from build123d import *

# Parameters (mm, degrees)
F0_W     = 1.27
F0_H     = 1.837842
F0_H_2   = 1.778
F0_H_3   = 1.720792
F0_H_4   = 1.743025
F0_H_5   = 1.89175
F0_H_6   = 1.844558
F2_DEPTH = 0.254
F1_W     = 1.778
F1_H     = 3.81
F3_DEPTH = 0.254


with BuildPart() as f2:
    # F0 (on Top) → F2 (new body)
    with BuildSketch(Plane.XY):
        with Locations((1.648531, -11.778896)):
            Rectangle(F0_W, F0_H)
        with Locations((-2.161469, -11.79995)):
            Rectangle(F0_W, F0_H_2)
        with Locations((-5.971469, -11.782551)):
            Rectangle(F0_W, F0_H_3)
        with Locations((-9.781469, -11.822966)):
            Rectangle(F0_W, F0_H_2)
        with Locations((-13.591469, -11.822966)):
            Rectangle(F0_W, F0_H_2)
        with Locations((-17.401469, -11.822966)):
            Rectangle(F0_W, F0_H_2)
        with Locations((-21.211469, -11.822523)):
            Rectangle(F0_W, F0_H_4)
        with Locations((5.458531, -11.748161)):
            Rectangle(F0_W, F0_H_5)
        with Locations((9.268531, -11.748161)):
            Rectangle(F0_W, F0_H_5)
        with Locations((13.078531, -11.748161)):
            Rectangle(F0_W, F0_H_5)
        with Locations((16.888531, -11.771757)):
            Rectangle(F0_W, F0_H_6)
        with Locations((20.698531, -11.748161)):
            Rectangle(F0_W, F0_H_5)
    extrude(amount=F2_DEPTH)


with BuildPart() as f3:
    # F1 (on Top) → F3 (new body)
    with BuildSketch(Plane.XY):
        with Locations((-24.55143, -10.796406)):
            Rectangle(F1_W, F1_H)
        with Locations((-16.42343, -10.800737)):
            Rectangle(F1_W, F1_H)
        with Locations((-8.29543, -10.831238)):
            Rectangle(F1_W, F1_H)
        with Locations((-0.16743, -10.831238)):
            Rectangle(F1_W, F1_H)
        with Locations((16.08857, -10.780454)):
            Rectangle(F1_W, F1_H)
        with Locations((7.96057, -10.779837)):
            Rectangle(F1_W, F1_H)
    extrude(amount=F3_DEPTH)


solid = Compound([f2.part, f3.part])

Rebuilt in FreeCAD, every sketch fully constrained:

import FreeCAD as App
import Part
import Sketcher
from FreeCAD import Vector
Q = App.Units.Quantity


def add_polygon(sketch, points):
    """Adds a closed chain of lines whose ends are joined by coincident constraints."""
    first, n = sketch.GeometryCount, len(points)
    for a, b in zip(points, points[1:] + points[:1]):
        sketch.addGeometry(Part.LineSegment(App.Vector(*a, 0), App.Vector(*b, 0)), False)
    for i in range(n):
        sketch.addConstraint(Sketcher.Constraint("Coincident", first + i, 2, first + (i + 1) % n, 1))

doc = App.newDocument("Part")
body = doc.addObject("PartDesign::Body", "Body")
body.AllowCompound = True

sketch1 = body.newObject("Sketcher::SketchObject", "Sketch")
sketch1.AttachmentSupport = (doc.getObject("XY_Plane"), [""])
sketch1.MapMode = "FlatFace"
add_polygon(sketch1, [(1, -10.9), (1, -12.7), (2.3, -12.7), (2.3, -10.9)])
add_polygon(sketch1, [(-2.8, -10.9), (-2.8, -12.7), (-1.5, -12.7), (-1.5, -10.9)])
add_polygon(sketch1, [(-6.6, -10.9), (-6.6, -12.6), (-5.3, -12.6), (-5.3, -10.9)])
add_polygon(sketch1, [(-10.4, -10.9), (-10.4, -12.7), (-9.1, -12.7), (-9.1, -10.9)])
add_polygon(sketch1, [(-14.2, -10.9), (-14.2, -12.7), (-13, -12.7), (-13, -10.9)])
add_polygon(sketch1, [(-18, -10.9), (-18, -12.7), (-16.8, -12.7), (-16.8, -10.9)])
add_polygon(sketch1, [(-21.8, -11), (-21.8, -12.7), (-20.6, -12.7), (-20.6, -11)])
add_polygon(sketch1, [(4.8, -10.8), (4.8, -12.7), (6.1, -12.7), (6.1, -10.8)])
add_polygon(sketch1, [(8.6, -10.8), (8.6, -12.7), (9.9, -12.7), (9.9, -10.8)])
add_polygon(sketch1, [(12.4, -10.8), (12.4, -12.7), (13.7, -12.7), (13.7, -10.8)])
add_polygon(sketch1, [(16.3, -10.8), (16.3, -12.7), (17.5, -12.7), (17.5, -10.8)])
add_polygon(sketch1, [(20.1, -10.8), (20.1, -12.7), (21.3, -12.7), (21.3, -10.8)])
sketch1.addConstraint([
    Sketcher.Constraint("Vertical", 0),
    Sketcher.Constraint("Horizontal", 1),
    Sketcher.Constraint("Vertical", 2),
    Sketcher.Constraint("Horizontal", 3),
    Sketcher.Constraint("Vertical", 4),
    Sketcher.Constraint("Horizontal", 5),
    Sketcher.Constraint("Vertical", 6),
    Sketcher.Constraint("Horizontal", 7),
    Sketcher.Constraint("Vertical", 8),
    Sketcher.Constraint("Horizontal", 9),
    Sketcher.Constraint("Vertical", 10),
    Sketcher.Constraint("Horizontal", 11),
    Sketcher.Constraint("Vertical", 12),
    Sketcher.Constraint("Horizontal", 13),
    Sketcher.Constraint("Vertical", 14),
    Sketcher.Constraint("Horizontal", 15),
    Sketcher.Constraint("Vertical", 16),
    Sketcher.Constraint("Horizontal", 17),
    Sketcher.Constraint("Vertical", 18),
    Sketcher.Constraint("Horizontal", 19),
    Sketcher.Constraint("Vertical", 20),
    Sketcher.Constraint("Horizontal", 21),
    Sketcher.Constraint("Vertical", 22),
    Sketcher.Constraint("Horizontal", 23),
    Sketcher.Constraint("Vertical", 24),
    Sketcher.Constraint("Horizontal", 25),
    Sketcher.Constraint("Vertical", 26),
    Sketcher.Constraint("Horizontal", 27),
    Sketcher.Constraint("Vertical", 28),
    Sketcher.Constraint("Horizontal", 29),
    Sketcher.Constraint("Vertical", 30),
    Sketcher.Constraint("Horizontal", 31),
    Sketcher.Constraint("Vertical", 32),
    Sketcher.Constraint("Horizontal", 33),
    Sketcher.Constraint("Vertical", 34),
    Sketcher.Constraint("Horizontal", 35),
    Sketcher.Constraint("Vertical", 36),
    Sketcher.Constraint("Horizontal", 37),
    Sketcher.Constraint("Vertical", 38),
    Sketcher.Constraint("Horizontal", 39),
    Sketcher.Constraint("Vertical", 40),
    Sketcher.Constraint("Horizontal", 41),
    Sketcher.Constraint("Vertical", 42),
    Sketcher.Constraint("Horizontal", 43),
    Sketcher.Constraint("Vertical", 44),
    Sketcher.Constraint("Horizontal", 45),
    Sketcher.Constraint("Vertical", 46),
    Sketcher.Constraint("Horizontal", 47),
    Sketcher.Constraint("Horizontal", 13, 2, 16, 2),
    Sketcher.Constraint("Horizontal", 15, 2, 18, 2),
    Sketcher.Constraint("Horizontal", 17, 2, 20, 2),
    Sketcher.Constraint("Horizontal", 19, 2, 22, 2),
    Sketcher.Constraint("Horizontal", 25, 2, 28, 2),
    Sketcher.Constraint("Horizontal", 29, 2, 32, 2),
    Sketcher.Constraint("Horizontal", 31, 2, 34, 2),
    Sketcher.Constraint("Horizontal", 33, 2, 36, 2),
    Sketcher.Constraint("Horizontal", 35, 2, 38, 2),
    Sketcher.Constraint("Horizontal", 37, 2, 40, 2),
    Sketcher.Constraint("Horizontal", 41, 2, 44, 2),
    Sketcher.Constraint("Horizontal", 39, 2, 46, 2),
    Sketcher.Constraint("Equal", 3, 5),
    Sketcher.Constraint("Equal", 7, 9),
    Sketcher.Constraint("Equal", 11, 13),
    Sketcher.Constraint("Equal", 15, 17),
    Sketcher.Constraint("Equal", 19, 21),
    Sketcher.Constraint("Equal", 23, 25),
    Sketcher.Constraint("Equal", 27, 29),
    Sketcher.Constraint("Equal", 31, 33),
    Sketcher.Constraint("Equal", 35, 37),
    Sketcher.Constraint("Equal", 39, 41),
    Sketcher.Constraint("Equal", 43, 45),
    Sketcher.Constraint("Equal", 6, 12),
    Sketcher.Constraint("DistanceX", 1, 1, 1, 2, Q("0.05 in")),
    Sketcher.Constraint("DistanceY", 4, 2, 4, 1, Q("0.07 in")),
    Sketcher.Constraint("DistanceX", 4, 2, 1, 2, Q("0.2 in")),
    Sketcher.Constraint("DistanceX", 8, 2, 5, 2, Q("0.2 in")),
    Sketcher.Constraint("DistanceX", 12, 2, 9, 2, Q("0.2 in")),
    Sketcher.Constraint("DistanceX", 16, 2, 13, 2, Q("0.2 in")),
    Sketcher.Constraint("DistanceX", 20, 2, 17, 2, Q("0.2 in")),
    Sketcher.Constraint("DistanceX", 24, 2, 21, 2, Q("0.2 in")),
    Sketcher.Constraint("DistanceX", 1, 2, 28, 2, Q("0.1 in")),
    Sketcher.Constraint("DistanceX", 29, 2, 32, 2, Q("0.1 in")),
    Sketcher.Constraint("DistanceX", 33, 2, 36, 2, Q("0.1 in")),
    Sketcher.Constraint("DistanceX", 37, 2, 40, 2, Q("0.1 in")),
    Sketcher.Constraint("DistanceX", 41, 2, 44, 2, Q("0.1 in")),
    Sketcher.Constraint("DistanceY", 8, 2, 8, 1, Q("1.720792 mm")),
    Sketcher.Constraint("DistanceY", 28, 2, 28, 1, Q("1.89175 mm")),
    Sketcher.Constraint("DistanceY", 40, 2, 40, 1, Q("1.844558 mm")),
    Sketcher.Constraint("DistanceY", 0, 2, 0, 1, Q("1.837842 mm")),
    Sketcher.Constraint("DistanceY", 24, 2, 24, 1, Q("1.743025 mm")),
    Sketcher.Constraint("DistanceX", -1, 1, 0, 2, Q("1.013531 mm")),
    Sketcher.Constraint("DistanceY", 4, 2, -1, 1, Q("12.68895 mm")),
    Sketcher.Constraint("DistanceY", 26, 2, -1, 1, Q("10.951011 mm")),
    Sketcher.Constraint("DistanceY", 0, 2, 8, 2, Q("0.05487 mm")),
    Sketcher.Constraint("DistanceY", 12, 2, 8, 2, Q("0.069019 mm")),
    Sketcher.Constraint("DistanceY", 20, 2, 24, 2, Q("0.017931 mm")),
])
pad1 = body.newObject("PartDesign::Pad", "Pad")
pad1.Profile = sketch1
pad1.Length = Q("0.01 in")
body2 = doc.addObject("PartDesign::Body", "Body001")
body2.AllowCompound = True

sketch2 = body2.newObject("Sketcher::SketchObject", "Sketch001")
sketch2.AttachmentSupport = (doc.getObject("XY_Plane001"), [""])
sketch2.MapMode = "FlatFace"
add_polygon(sketch2, [(-25.4, -8.9), (-25.4, -12.7), (-23.7, -12.7), (-23.7, -8.9)])
add_polygon(sketch2, [(-17.3, -8.9), (-17.3, -12.7), (-15.5, -12.7), (-15.5, -8.9)])
add_polygon(sketch2, [(-9.2, -8.9), (-9.2, -12.7), (-7.4, -12.7), (-7.4, -8.9)])
add_polygon(sketch2, [(-1.1, -8.9), (-1.1, -12.7), (0.7, -12.7), (0.7, -8.9)])
add_polygon(sketch2, [(15.2, -8.9), (15.2, -12.7), (17, -12.7), (17, -8.9)])
add_polygon(sketch2, [(7.1, -8.9), (7.1, -12.7), (8.8, -12.7), (8.8, -8.9)])
sketch2.addConstraint([
    Sketcher.Constraint("Vertical", 0),
    Sketcher.Constraint("Horizontal", 1),
    Sketcher.Constraint("Vertical", 2),
    Sketcher.Constraint("Horizontal", 3),
    Sketcher.Constraint("Vertical", 4),
    Sketcher.Constraint("Horizontal", 5),
    Sketcher.Constraint("Vertical", 6),
    Sketcher.Constraint("Horizontal", 7),
    Sketcher.Constraint("Vertical", 8),
    Sketcher.Constraint("Horizontal", 9),
    Sketcher.Constraint("Vertical", 10),
    Sketcher.Constraint("Horizontal", 11),
    Sketcher.Constraint("Vertical", 12),
    Sketcher.Constraint("Horizontal", 13),
    Sketcher.Constraint("Vertical", 14),
    Sketcher.Constraint("Horizontal", 15),
    Sketcher.Constraint("Vertical", 16),
    Sketcher.Constraint("Horizontal", 17),
    Sketcher.Constraint("Vertical", 18),
    Sketcher.Constraint("Horizontal", 19),
    Sketcher.Constraint("Vertical", 20),
    Sketcher.Constraint("Horizontal", 21),
    Sketcher.Constraint("Vertical", 22),
    Sketcher.Constraint("Horizontal", 23),
    Sketcher.Constraint("Horizontal", 9, 2, 12, 2),
    Sketcher.Constraint("Horizontal", 11, 2, 14, 2),
    Sketcher.Constraint("Equal", 3, 5),
    Sketcher.Constraint("Equal", 7, 9),
    Sketcher.Constraint("Equal", 11, 13),
    Sketcher.Constraint("Equal", 15, 17),
    Sketcher.Constraint("Equal", 19, 21),
    Sketcher.Constraint("Equal", 2, 4),
    Sketcher.Constraint("Equal", 6, 8),
    Sketcher.Constraint("Equal", 14, 16),
    Sketcher.Constraint("Equal", 18, 20),
    Sketcher.Constraint("DistanceX", 1, 1, 1, 2, Q("0.07 in")),
    Sketcher.Constraint("DistanceY", 0, 2, 0, 1, Q("0.15 in")),
    Sketcher.Constraint("DistanceX", 1, 2, 4, 2, Q("0.25 in")),
    Sketcher.Constraint("DistanceX", 5, 2, 8, 2, Q("0.25 in")),
    Sketcher.Constraint("DistanceX", 9, 2, 12, 2, Q("0.25 in")),
    Sketcher.Constraint("DistanceX", 13, 2, 16, 2, Q("0.57 in")),
    Sketcher.Constraint("DistanceX", 13, 2, 20, 2, Q("0.25 in")),
    Sketcher.Constraint("DistanceY", 8, 2, 5, 2, Q("0.030501 mm")),
    Sketcher.Constraint("DistanceY", 13, 2, 20, 2, Q("0.051401 mm")),
    Sketcher.Constraint("DistanceX", 0, 2, -1, 1, Q("25.44043 mm")),
    Sketcher.Constraint("DistanceY", 4, 2, 1, 2, Q("0.004331 mm")),
    Sketcher.Constraint("DistanceY", 0, 2, -1, 1, Q("12.701406 mm")),
    Sketcher.Constraint("DistanceY", 16, 2, -1, 1, Q("12.685454 mm")),
])
pad2 = body2.newObject("PartDesign::Pad", "Pad001")
pad2.Profile = sketch2
pad2.Length = Q("0.01 in")

doc.recompute()
